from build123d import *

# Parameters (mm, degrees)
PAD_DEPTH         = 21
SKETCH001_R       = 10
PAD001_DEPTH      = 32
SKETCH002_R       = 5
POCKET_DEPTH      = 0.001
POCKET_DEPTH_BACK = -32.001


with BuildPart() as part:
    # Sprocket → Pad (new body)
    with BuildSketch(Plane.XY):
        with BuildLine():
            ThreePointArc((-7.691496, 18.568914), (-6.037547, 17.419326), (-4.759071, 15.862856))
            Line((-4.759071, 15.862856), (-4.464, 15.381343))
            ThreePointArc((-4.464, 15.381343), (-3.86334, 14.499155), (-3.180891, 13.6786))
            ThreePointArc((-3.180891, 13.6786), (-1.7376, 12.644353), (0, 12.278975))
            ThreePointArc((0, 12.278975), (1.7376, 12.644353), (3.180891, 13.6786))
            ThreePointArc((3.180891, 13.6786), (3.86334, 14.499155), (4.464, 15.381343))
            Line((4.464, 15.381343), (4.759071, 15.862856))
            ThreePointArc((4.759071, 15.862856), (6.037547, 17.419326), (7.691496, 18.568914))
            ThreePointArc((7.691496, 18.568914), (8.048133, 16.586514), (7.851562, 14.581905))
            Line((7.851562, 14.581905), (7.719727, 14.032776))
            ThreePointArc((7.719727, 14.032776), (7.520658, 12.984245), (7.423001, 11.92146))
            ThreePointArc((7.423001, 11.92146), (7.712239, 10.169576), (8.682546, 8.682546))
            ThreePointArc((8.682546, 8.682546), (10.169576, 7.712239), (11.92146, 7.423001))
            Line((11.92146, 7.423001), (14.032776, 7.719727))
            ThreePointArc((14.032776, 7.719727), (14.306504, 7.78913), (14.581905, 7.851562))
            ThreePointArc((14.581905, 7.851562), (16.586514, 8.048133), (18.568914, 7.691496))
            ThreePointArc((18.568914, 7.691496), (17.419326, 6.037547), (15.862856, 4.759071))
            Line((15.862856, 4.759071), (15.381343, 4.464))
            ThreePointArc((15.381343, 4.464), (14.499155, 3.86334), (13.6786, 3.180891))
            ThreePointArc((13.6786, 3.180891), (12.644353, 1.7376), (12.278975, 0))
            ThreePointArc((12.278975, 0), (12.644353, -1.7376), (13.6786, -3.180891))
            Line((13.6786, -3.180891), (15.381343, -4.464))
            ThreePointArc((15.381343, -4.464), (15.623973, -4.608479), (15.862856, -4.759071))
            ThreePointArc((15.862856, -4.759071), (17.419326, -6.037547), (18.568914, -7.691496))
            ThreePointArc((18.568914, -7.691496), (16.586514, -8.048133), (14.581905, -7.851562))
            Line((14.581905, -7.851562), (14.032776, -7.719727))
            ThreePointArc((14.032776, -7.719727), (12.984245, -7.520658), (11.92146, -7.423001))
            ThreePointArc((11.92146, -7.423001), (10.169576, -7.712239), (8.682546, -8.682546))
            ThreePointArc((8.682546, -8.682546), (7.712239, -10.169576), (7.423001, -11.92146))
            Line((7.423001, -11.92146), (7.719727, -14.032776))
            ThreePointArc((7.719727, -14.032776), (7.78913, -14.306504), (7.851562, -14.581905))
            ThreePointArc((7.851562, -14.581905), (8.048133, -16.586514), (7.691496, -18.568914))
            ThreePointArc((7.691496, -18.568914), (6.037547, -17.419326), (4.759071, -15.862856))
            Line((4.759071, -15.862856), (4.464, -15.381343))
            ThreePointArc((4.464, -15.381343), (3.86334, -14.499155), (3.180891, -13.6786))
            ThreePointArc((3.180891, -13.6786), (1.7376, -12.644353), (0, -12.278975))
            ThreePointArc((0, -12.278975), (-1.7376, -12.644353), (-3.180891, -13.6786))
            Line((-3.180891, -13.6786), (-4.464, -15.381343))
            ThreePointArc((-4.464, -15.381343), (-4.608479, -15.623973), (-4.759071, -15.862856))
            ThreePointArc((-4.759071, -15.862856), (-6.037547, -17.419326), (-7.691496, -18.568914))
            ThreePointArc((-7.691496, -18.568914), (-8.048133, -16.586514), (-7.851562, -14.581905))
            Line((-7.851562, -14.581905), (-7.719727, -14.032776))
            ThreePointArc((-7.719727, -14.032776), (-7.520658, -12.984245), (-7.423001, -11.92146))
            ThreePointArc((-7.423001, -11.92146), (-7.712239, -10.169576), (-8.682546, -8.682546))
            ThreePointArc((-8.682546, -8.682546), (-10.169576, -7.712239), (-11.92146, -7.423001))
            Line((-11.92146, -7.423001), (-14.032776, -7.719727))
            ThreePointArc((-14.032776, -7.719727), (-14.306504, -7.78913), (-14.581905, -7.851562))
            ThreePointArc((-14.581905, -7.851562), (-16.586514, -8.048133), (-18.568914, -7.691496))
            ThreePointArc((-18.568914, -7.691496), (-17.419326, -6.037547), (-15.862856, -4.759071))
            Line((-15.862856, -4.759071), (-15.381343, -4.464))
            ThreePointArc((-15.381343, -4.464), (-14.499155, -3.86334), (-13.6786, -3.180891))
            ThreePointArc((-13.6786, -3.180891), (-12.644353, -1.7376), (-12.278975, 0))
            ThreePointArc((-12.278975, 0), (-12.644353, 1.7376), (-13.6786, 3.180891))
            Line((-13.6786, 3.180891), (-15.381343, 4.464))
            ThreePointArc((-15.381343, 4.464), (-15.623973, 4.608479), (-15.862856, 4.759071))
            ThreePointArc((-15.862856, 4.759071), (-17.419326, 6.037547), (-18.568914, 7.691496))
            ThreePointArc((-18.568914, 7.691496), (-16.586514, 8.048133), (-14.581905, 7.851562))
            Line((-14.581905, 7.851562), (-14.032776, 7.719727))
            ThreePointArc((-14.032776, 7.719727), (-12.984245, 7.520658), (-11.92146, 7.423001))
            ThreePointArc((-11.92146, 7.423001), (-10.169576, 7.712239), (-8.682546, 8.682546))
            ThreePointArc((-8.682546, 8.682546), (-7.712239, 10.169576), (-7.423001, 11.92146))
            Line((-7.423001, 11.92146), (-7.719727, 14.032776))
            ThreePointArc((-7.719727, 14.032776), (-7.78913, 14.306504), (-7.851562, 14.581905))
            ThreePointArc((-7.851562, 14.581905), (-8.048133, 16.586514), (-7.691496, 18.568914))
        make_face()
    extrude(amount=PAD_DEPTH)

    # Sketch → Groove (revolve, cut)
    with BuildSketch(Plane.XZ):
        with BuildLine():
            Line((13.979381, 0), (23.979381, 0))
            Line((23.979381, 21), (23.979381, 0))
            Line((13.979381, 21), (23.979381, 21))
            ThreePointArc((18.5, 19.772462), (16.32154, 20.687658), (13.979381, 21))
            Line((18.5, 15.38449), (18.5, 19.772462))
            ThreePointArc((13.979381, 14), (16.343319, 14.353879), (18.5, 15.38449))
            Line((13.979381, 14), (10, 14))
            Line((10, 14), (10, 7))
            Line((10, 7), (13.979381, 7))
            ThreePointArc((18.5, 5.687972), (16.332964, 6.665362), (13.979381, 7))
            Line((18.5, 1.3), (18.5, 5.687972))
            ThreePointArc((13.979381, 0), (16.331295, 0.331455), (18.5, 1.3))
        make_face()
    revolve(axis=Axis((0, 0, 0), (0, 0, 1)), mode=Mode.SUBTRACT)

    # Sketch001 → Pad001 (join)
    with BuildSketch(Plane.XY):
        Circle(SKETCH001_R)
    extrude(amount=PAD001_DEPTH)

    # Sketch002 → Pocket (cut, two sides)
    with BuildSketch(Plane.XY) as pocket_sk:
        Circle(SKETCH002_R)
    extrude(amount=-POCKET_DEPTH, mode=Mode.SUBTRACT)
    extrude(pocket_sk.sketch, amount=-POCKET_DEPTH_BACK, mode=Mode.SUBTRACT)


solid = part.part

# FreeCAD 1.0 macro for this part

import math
import FreeCAD as App
import Part
import Sketcher
from FreeCAD import Vector

doc = App.newDocument("Part")
body = doc.addObject("PartDesign::Body", "Body")

sketch1 = doc.addObject("Sketcher::SketchObject", "Sketch")
body.addObject(sketch1)
sketch1.AttachmentSupport = (doc.XY_Plane, [""])
sketch1.MapMode = "FlatFace"
sketch1.addGeometry(Part.ArcOfCircle(Part.Circle(Vector(-11.007099, 12.034061, 0), Vector(0, 0, 1), 7.327859), math.radians(31.499988), math.radians(63.098027)), False)
sketch1.addGeometry(Part.ArcOfCircle(Part.Circle(Vector(-0.726167, 16.29256, 0), Vector(0, 0, 1), 7.327864), math.radians(161.901981), math.radians(193.499994)), False)
sketch1.addGeometry(Part.ArcOfCircle(Part.Circle(Vector(3.027006, 16.903244, 0), Vector(0, 0, 1), 11.123482), math.radians(-167.954515), math.radians(-165.045329)), False)
sketch1.addGeometry(Part.LineSegment(Vector(-7.719727, 14.032776, 0), Vector(-7.423001, 11.92146, 0)), False)
sketch1.addGeometry(Part.ArcOfCircle(Part.Circle(Vector(-11.733276, 11.733272, 0), Vector(0, 0, 1), 4.314381), math.radians(-44.999965), math.radians(2.499958)), False)
sketch1.addGeometry(Part.ArcOfCircle(Part.Circle(Vector(-11.733272, 11.733276, 0), Vector(0, 0, 1), 4.314381), math.radians(-92.499958), math.radians(-45.000035)), False)
sketch1.addGeometry(Part.ArcOfCircle(Part.Circle(Vector(-11.436285, 18.534963, 0), Vector(0, 0, 1), 11.122549), math.radians(-103.499912), math.radians(-92.500082)), False)
sketch1.addGeometry(Part.LineSegment(Vector(-14.032776, 7.719727, 0), Vector(-14.581905, 7.851562, 0)), False)
sketch1.addGeometry(Part.ArcOfCircle(Part.Circle(Vector(-16.29256, 0.726167, 0), Vector(0, 0, 1), 7.327864), math.radians(76.500006), math.radians(108.098019)), False)
sketch1.addGeometry(Part.ArcOfCircle(Part.Circle(Vector(-12.034061, 11.007099, 0), Vector(0, 0, 1), 7.327859), math.radians(-153.098027), math.radians(-121.499988)), False)
sketch1.addGeometry(Part.ArcOfCircle(Part.Circle(Vector(-9.812852, 14.091384, 0), Vector(0, 0, 1), 11.121808), math.radians(-122.954762), math.radians(-120.045144)), False)
sketch1.addGeometry(Part.LineSegment(Vector(-15.381343, 4.464, 0), Vector(-13.6786, 3.180891, 0)), False)
sketch1.addGeometry(Part.ArcOfCircle(Part.Circle(Vector(-16.593353, -0.000001, 0), Vector(0, 0, 1), 4.314378), math.radians(0.000011), math.radians(47.499973)), False)
sketch1.addGeometry(Part.ArcOfCircle(Part.Circle(Vector(-16.593353, 0.000001, 0), Vector(0, 0, 1), 4.314378), math.radians(-47.499973), math.radians(-0.000011)), False)
sketch1.addGeometry(Part.ArcOfCircle(Part.Circle(Vector(-21.192716, 5.019314, 0), Vector(0, 0, 1), 11.122288), math.radians(-58.500042), math.radians(-47.499953)), False)
sketch1.addGeometry(Part.LineSegment(Vector(-15.381343, -4.464, 0), Vector(-15.862856, -4.759071, 0)), False)
sketch1.addGeometry(Part.ArcOfCircle(Part.Circle(Vector(-12.034061, -11.007099, 0), Vector(0, 0, 1), 7.327859), math.radians(121.499988), math.radians(153.098027)), False)
sketch1.addGeometry(Part.ArcOfCircle(Part.Circle(Vector(-16.29256, -0.726167, 0), Vector(0, 0, 1), 7.327864), math.radians(-108.098019), math.radians(-76.500006)), False)
sketch1.addGeometry(Part.ArcOfCircle(Part.Circle(Vector(-16.903244, 3.027006, 0), Vector(0, 0, 1), 11.123482), math.radians(-77.954515), math.radians(-75.045329)), False)
sketch1.addGeometry(Part.LineSegment(Vector(-14.032776, -7.719727, 0), Vector(-11.92146, -7.423001, 0)), False)
sketch1.addGeometry(Part.ArcOfCircle(Part.Circle(Vector(-11.733272, -11.733276, 0), Vector(0, 0, 1), 4.314381), math.radians(45.000035), math.radians(92.499958)), False)
sketch1.addGeometry(Part.ArcOfCircle(Part.Circle(Vector(-11.733276, -11.733272, 0), Vector(0, 0, 1), 4.314381), math.radians(-2.499958), math.radians(44.999965)), False)
sketch1.addGeometry(Part.ArcOfCircle(Part.Circle(Vector(-18.534963, -11.436285, 0), Vector(0, 0, 1), 11.122549), math.radians(-13.499912), math.radians(-2.500082)), False)
sketch1.addGeometry(Part.LineSegment(Vector(-7.719727, -14.032776, 0), Vector(-7.851562, -14.581905, 0)), False)
sketch1.addGeometry(Part.ArcOfCircle(Part.Circle(Vector(-0.726167, -16.29256, 0), Vector(0, 0, 1), 7.327864), math.radians(166.500006), math.radians(198.098019)), False)
sketch1.addGeometry(Part.ArcOfCircle(Part.Circle(Vector(-11.007099, -12.034061, 0), Vector(0, 0, 1), 7.327859), math.radians(-63.098027), math.radians(-31.499988)), False)
sketch1.addGeometry(Part.ArcOfCircle(Part.Circle(Vector(-14.091384, -9.812852, 0), Vector(0, 0, 1), 11.121808), math.radians(-32.954762), math.radians(-30.045144)), False)
sketch1.addGeometry(Part.LineSegment(Vector(-4.464, -15.381343, 0), Vector(-3.180891, -13.6786, 0)), False)
sketch1.addGeometry(Part.ArcOfCircle(Part.Circle(Vector(0.000001, -16.593353, 0), Vector(0, 0, 1), 4.314378), math.radians(90.000011), math.radians(137.499973)), False)
sketch1.addGeometry(Part.ArcOfCircle(Part.Circle(Vector(-0.000001, -16.593353, 0), Vector(0, 0, 1), 4.314378), math.radians(42.500027), math.radians(89.999989)), False)
sketch1.addGeometry(Part.ArcOfCircle(Part.Circle(Vector(-5.019314, -21.192716, 0), Vector(0, 0, 1), 11.122288), math.radians(31.499958), math.radians(42.500047)), False)
sketch1.addGeometry(Part.LineSegment(Vector(4.464, -15.381343, 0), Vector(4.759071, -15.862856, 0)), False)
sketch1.addGeometry(Part.ArcOfCircle(Part.Circle(Vector(11.007099, -12.034061, 0), Vector(0, 0, 1), 7.327859), math.radians(-148.500012), math.radians(-116.901973)), False)
sketch1.addGeometry(Part.ArcOfCircle(Part.Circle(Vector(0.726167, -16.29256, 0), Vector(0, 0, 1), 7.327864), math.radians(-18.098019), math.radians(13.499994)), False)
sketch1.addGeometry(Part.ArcOfCircle(Part.Circle(Vector(-3.027006, -16.903244, 0), Vector(0, 0, 1), 11.123482), math.radians(12.045485), math.radians(14.954671)), False)
sketch1.addGeometry(Part.LineSegment(Vector(7.719727, -14.032776, 0), Vector(7.423001, -11.92146, 0)), False)
sketch1.addGeometry(Part.ArcOfCircle(Part.Circle(Vector(11.733276, -11.733272, 0), Vector(0, 0, 1), 4.314381), math.radians(135.000035), math.radians(182.499958)), False)
sketch1.addGeometry(Part.ArcOfCircle(Part.Circle(Vector(11.733272, -11.733276, 0), Vector(0, 0, 1), 4.314381), math.radians(87.500042), math.radians(134.999965)), False)
sketch1.addGeometry(Part.ArcOfCircle(Part.Circle(Vector(11.436285, -18.534963, 0), Vector(0, 0, 1), 11.122549), math.radians(76.500088), math.radians(87.499918)), False)
sketch1.addGeometry(Part.LineSegment(Vector(14.032776, -7.719727, 0), Vector(14.581905, -7.851562, 0)), False)
sketch1.addGeometry(Part.ArcOfCircle(Part.Circle(Vector(16.29256, -0.726167, 0), Vector(0, 0, 1), 7.327864), math.radians(-103.499994), math.radians(-71.901981)), False)
sketch1.addGeometry(Part.ArcOfCircle(Part.Circle(Vector(12.034061, -11.007099, 0), Vector(0, 0, 1), 7.327859), math.radians(26.901973), math.radians(58.500012)), False)
sketch1.addGeometry(Part.ArcOfCircle(Part.Circle(Vector(9.812852, -14.091384, 0), Vector(0, 0, 1), 11.121808), math.radians(57.045238), math.radians(59.954856)), False)
sketch1.addGeometry(Part.LineSegment(Vector(15.381343, -4.464, 0), Vector(13.6786, -3.180891, 0)), False)
sketch1.addGeometry(Part.ArcOfCircle(Part.Circle(Vector(16.593353, 0.000001, 0), Vector(0, 0, 1), 4.314378), math.radians(-179.999989), math.radians(-132.500027)), False)
sketch1.addGeometry(Part.ArcOfCircle(Part.Circle(Vector(16.593353, -0.000001, 0), Vector(0, 0, 1), 4.314378), math.radians(132.500027), math.radians(179.999989)), False)
sketch1.addGeometry(Part.ArcOfCircle(Part.Circle(Vector(21.192716, -5.019314, 0), Vector(0, 0, 1), 11.122288), math.radians(121.499958), math.radians(132.500047)), False)
sketch1.addGeometry(Part.LineSegment(Vector(15.381343, 4.464, 0), Vector(15.862856, 4.759071, 0)), False)
sketch1.addGeometry(Part.ArcOfCircle(Part.Circle(Vector(12.034061, 11.007099, 0), Vector(0, 0, 1), 7.327859), math.radians(-58.500012), math.radians(-26.901973)), False)
sketch1.addGeometry(Part.ArcOfCircle(Part.Circle(Vector(16.29256, 0.726167, 0), Vector(0, 0, 1), 7.327864), math.radians(71.901981), math.radians(103.499994)), False)
sketch1.addGeometry(Part.ArcOfCircle(Part.Circle(Vector(16.903244, -3.027006, 0), Vector(0, 0, 1), 11.123482), math.radians(102.045485), math.radians(104.954671)), False)
sketch1.addGeometry(Part.LineSegment(Vector(14.032776, 7.719727, 0), Vector(11.92146, 7.423001, 0)), False)
sketch1.addGeometry(Part.ArcOfCircle(Part.Circle(Vector(11.733272, 11.733276, 0), Vector(0, 0, 1), 4.314381), math.radians(-134.999965), math.radians(-87.500042)), False)
sketch1.addGeometry(Part.ArcOfCircle(Part.Circle(Vector(11.733276, 11.733272, 0), Vector(0, 0, 1), 4.314381), math.radians(177.500042), math.radians(224.999965)), False)
sketch1.addGeometry(Part.ArcOfCircle(Part.Circle(Vector(18.534963, 11.436285, 0), Vector(0, 0, 1), 11.122549), math.radians(166.500088), math.radians(177.499918)), False)
sketch1.addGeometry(Part.LineSegment(Vector(7.719727, 14.032776, 0), Vector(7.851562, 14.581905, 0)), False)
sketch1.addGeometry(Part.ArcOfCircle(Part.Circle(Vector(0.726167, 16.29256, 0), Vector(0, 0, 1), 7.327864), math.radians(-13.499994), math.radians(18.098019)), False)
sketch1.addGeometry(Part.ArcOfCircle(Part.Circle(Vector(11.007099, 12.034061, 0), Vector(0, 0, 1), 7.327859), math.radians(116.901973), math.radians(148.500012)), False)
sketch1.addGeometry(Part.LineSegment(Vector(4.759071, 15.862856, 0), Vector(4.464, 15.381343, 0)), False)
sketch1.addGeometry(Part.ArcOfCircle(Part.Circle(Vector(-5.019314, 21.192716, 0), Vector(0, 0, 1), 11.122288), math.radians(-42.500047), math.radians(-31.499958)), False)
sketch1.addGeometry(Part.ArcOfCircle(Part.Circle(Vector(-0.000001, 16.593353, 0), Vector(0, 0, 1), 4.314378), math.radians(-89.999989), math.radians(-42.500027)), False)
sketch1.addGeometry(Part.ArcOfCircle(Part.Circle(Vector(0.000001, 16.593353, 0), Vector(0, 0, 1), 4.314378), math.radians(-137.499973), math.radians(-90.000011)), False)
sketch1.addGeometry(Part.ArcOfCircle(Part.Circle(Vector(5.019314, 21.192716, 0), Vector(0, 0, 1), 11.122288), math.radians(-148.500042), math.radians(-137.499953)), False)
sketch1.addGeometry(Part.LineSegment(Vector(-4.464, 15.381343, 0), Vector(-4.759071, 15.862856, 0)), False)
sketch1.addConstraint(Sketcher.Constraint("Coincident", 0, 2, 1, 1))
sketch1.addConstraint(Sketcher.Constraint("Coincident", 1, 2, 2, 1))
sketch1.addConstraint(Sketcher.Constraint("Coincident", 2, 2, 3, 1))
sketch1.addConstraint(Sketcher.Constraint("Coincident", 3, 2, 4, 2))
sketch1.addConstraint(Sketcher.Constraint("Coincident", 4, 1, 5, 2))
sketch1.addConstraint(Sketcher.Constraint("Coincident", 5, 1, 6, 2))
sketch1.addConstraint(Sketcher.Constraint("Coincident", 6, 1, 7, 1))
sketch1.addConstraint(Sketcher.Constraint("Coincident", 7, 2, 8, 1))
sketch1.addConstraint(Sketcher.Constraint("Coincident", 8, 2, 9, 1))
sketch1.addConstraint(Sketcher.Constraint("Coincident", 9, 2, 10, 1))
sketch1.addConstraint(Sketcher.Constraint("Coincident", 10, 2, 11, 1))
sketch1.addConstraint(Sketcher.Constraint("Coincident", 11, 2, 12, 2))
sketch1.addConstraint(Sketcher.Constraint("Coincident", 12, 1, 13, 2))
sketch1.addConstraint(Sketcher.Constraint("Coincident", 13, 1, 14, 2))
sketch1.addConstraint(Sketcher.Constraint("Coincident", 14, 1, 15, 1))
sketch1.addConstraint(Sketcher.Constraint("Coincident", 15, 2, 16, 1))
sketch1.addConstraint(Sketcher.Constraint("Coincident", 16, 2, 17, 1))
sketch1.addConstraint(Sketcher.Constraint("Coincident", 17, 2, 18, 1))
sketch1.addConstraint(Sketcher.Constraint("Coincident", 18, 2, 19, 1))
sketch1.addConstraint(Sketcher.Constraint("Coincident", 19, 2, 20, 2))
sketch1.addConstraint(Sketcher.Constraint("Coincident", 20, 1, 21, 2))
sketch1.addConstraint(Sketcher.Constraint("Coincident", 21, 1, 22, 2))
sketch1.addConstraint(Sketcher.Constraint("Coincident", 22, 1, 23, 1))
sketch1.addConstraint(Sketcher.Constraint("Coincident", 23, 2, 24, 1))
sketch1.addConstraint(Sketcher.Constraint("Coincident", 24, 2, 25, 1))
sketch1.addConstraint(Sketcher.Constraint("Coincident", 25, 2, 26, 1))
sketch1.addConstraint(Sketcher.Constraint("Coincident", 26, 2, 27, 1))
sketch1.addConstraint(Sketcher.Constraint("Coincident", 27, 2, 28, 2))
sketch1.addConstraint(Sketcher.Constraint("Coincident", 28, 1, 29, 2))
sketch1.addConstraint(Sketcher.Constraint("Coincident", 29, 1, 30, 2))
sketch1.addConstraint(Sketcher.Constraint("Coincident", 30, 1, 31, 1))
sketch1.addConstraint(Sketcher.Constraint("Coincident", 31, 2, 32, 1))
sketch1.addConstraint(Sketcher.Constraint("Coincident", 32, 2, 33, 1))
sketch1.addConstraint(Sketcher.Constraint("Coincident", 33, 2, 34, 1))
sketch1.addConstraint(Sketcher.Constraint("Coincident", 34, 2, 35, 1))
sketch1.addConstraint(Sketcher.Constraint("Coincident", 35, 2, 36, 2))
sketch1.addConstraint(Sketcher.Constraint("Coincident", 36, 1, 37, 2))
sketch1.addConstraint(Sketcher.Constraint("Coincident", 37, 1, 38, 2))
sketch1.addConstraint(Sketcher.Constraint("Coincident", 38, 1, 39, 1))
sketch1.addConstraint(Sketcher.Constraint("Coincident", 39, 2, 40, 1))
sketch1.addConstraint(Sketcher.Constraint("Coincident", 40, 2, 41, 1))
sketch1.addConstraint(Sketcher.Constraint("Coincident", 41, 2, 42, 1))
sketch1.addConstraint(Sketcher.Constraint("Coincident", 42, 2, 43, 1))
sketch1.addConstraint(Sketcher.Constraint("Coincident", 43, 2, 44, 2))
sketch1.addConstraint(Sketcher.Constraint("Coincident", 44, 1, 45, 2))
sketch1.addConstraint(Sketcher.Constraint("Coincident", 45, 1, 46, 2))
sketch1.addConstraint(Sketcher.Constraint("Coincident", 46, 1, 47, 1))
sketch1.addConstraint(Sketcher.Constraint("Coincident", 47, 2, 48, 1))
sketch1.addConstraint(Sketcher.Constraint("Coincident", 48, 2, 49, 1))
sketch1.addConstraint(Sketcher.Constraint("Coincident", 49, 2, 50, 1))
sketch1.addConstraint(Sketcher.Constraint("Coincident", 50, 2, 51, 1))
sketch1.addConstraint(Sketcher.Constraint("Coincident", 51, 2, 52, 2))
sketch1.addConstraint(Sketcher.Constraint("Coincident", 52, 1, 53, 2))
sketch1.addConstraint(Sketcher.Constraint("Coincident", 53, 1, 54, 2))
sketch1.addConstraint(Sketcher.Constraint("Coincident", 54, 1, 55, 1))
sketch1.addConstraint(Sketcher.Constraint("Coincident", 55, 2, 56, 1))
sketch1.addConstraint(Sketcher.Constraint("Coincident", 56, 2, 57, 1))
sketch1.addConstraint(Sketcher.Constraint("Coincident", 57, 2, 58, 1))
sketch1.addConstraint(Sketcher.Constraint("Coincident", 58, 2, 59, 2))
sketch1.addConstraint(Sketcher.Constraint("Coincident", 59, 1, 60, 2))
sketch1.addConstraint(Sketcher.Constraint("Coincident", 60, 1, 61, 2))
sketch1.addConstraint(Sketcher.Constraint("Coincident", 61, 1, 62, 2))
sketch1.addConstraint(Sketcher.Constraint("Coincident", 62, 1, 63, 1))
sketch1.addConstraint(Sketcher.Constraint("Coincident", 63, 2, 0, 1))
sketch1.addConstraint(Sketcher.Constraint("Coincident", 5, 3, 4, 3))
sketch1.addConstraint(Sketcher.Constraint("Coincident", 13, 3, 12, 3))
sketch1.addConstraint(Sketcher.Constraint("Coincident", 21, 3, 20, 3))
sketch1.addConstraint(Sketcher.Constraint("Coincident", 29, 3, 28, 3))
sketch1.addConstraint(Sketcher.Constraint("Coincident", 37, 3, 36, 3))
sketch1.addConstraint(Sketcher.Constraint("Coincident", 45, 3, 44, 3))
sketch1.addConstraint(Sketcher.Constraint("Coincident", 53, 3, 52, 3))
sketch1.addConstraint(Sketcher.Constraint("Coincident", 61, 3, 60, 3))
sketch1.addConstraint(Sketcher.Constraint("PointOnObject", 12, 3, -1))
sketch1.addConstraint(Sketcher.Constraint("PointOnObject", 28, 3, -2))
sketch1.addConstraint(Sketcher.Constraint("PointOnObject", 44, 3, -1))
sketch1.addConstraint(Sketcher.Constraint("PointOnObject", 60, 3, -2))
sketch1.addConstraint(Sketcher.Constraint("PointOnObject", 12, 1, -1))
sketch1.addConstraint(Sketcher.Constraint("PointOnObject", 28, 1, -2))
sketch1.addConstraint(Sketcher.Constraint("PointOnObject", 44, 1, -1))
sketch1.addConstraint(Sketcher.Constraint("PointOnObject", 60, 1, -2))
sketch1.addConstraint(Sketcher.Constraint("Radius", 0, 7.327859))
sketch1.addConstraint(Sketcher.Constraint("Radius", 4, 4.314381))
sketch1.addConstraint(Sketcher.Constraint("Radius", 6, 11.122549))
sketch1.addConstraint(Sketcher.Constraint("Radius", 9, 7.327859))
sketch1.addConstraint(Sketcher.Constraint("Radius", 10, 11.121808))
sketch1.addConstraint(Sketcher.Constraint("Radius", 12, 4.314378))
sketch1.addConstraint(Sketcher.Constraint("Radius", 14, 11.122288))
sketch1.addConstraint(Sketcher.Constraint("Radius", 16, 7.327859))
sketch1.addConstraint(Sketcher.Constraint("Radius", 20, 4.314381))
sketch1.addConstraint(Sketcher.Constraint("Radius", 22, 11.122549))
sketch1.addConstraint(Sketcher.Constraint("Radius", 25, 7.327859))
sketch1.addConstraint(Sketcher.Constraint("Radius", 26, 11.121808))
sketch1.addConstraint(Sketcher.Constraint("Radius", 28, 4.314378))
sketch1.addConstraint(Sketcher.Constraint("Radius", 30, 11.122288))
sketch1.addConstraint(Sketcher.Constraint("Radius", 32, 7.327859))
sketch1.addConstraint(Sketcher.Constraint("Radius", 36, 4.314381))
sketch1.addConstraint(Sketcher.Constraint("Radius", 38, 11.122549))
sketch1.addConstraint(Sketcher.Constraint("Radius", 41, 7.327859))
sketch1.addConstraint(Sketcher.Constraint("Radius", 42, 11.121808))
sketch1.addConstraint(Sketcher.Constraint("Radius", 44, 4.314378))
sketch1.addConstraint(Sketcher.Constraint("Radius", 46, 11.122288))
sketch1.addConstraint(Sketcher.Constraint("Radius", 48, 7.327859))
sketch1.addConstraint(Sketcher.Constraint("Radius", 52, 4.314381))
sketch1.addConstraint(Sketcher.Constraint("Radius", 54, 11.122549))
sketch1.addConstraint(Sketcher.Constraint("Radius", 57, 7.327859))
sketch1.addConstraint(Sketcher.Constraint("Radius", 59, 11.122288))
sketch1.addConstraint(Sketcher.Constraint("Radius", 60, 4.314378))
sketch1.addConstraint(Sketcher.Constraint("Radius", 62, 11.122288))
sketch1.addConstraint(Sketcher.Constraint("DistanceX", 3, 2, -1, 1, 7.423001))
sketch1.addConstraint(Sketcher.Constraint("DistanceY", -1, 1, 5, 1, 7.423001))
sketch1.addConstraint(Sketcher.Constraint("DistanceY", -1, 1, 10, 2, 4.464))
sketch1.addConstraint(Sketcher.Constraint("DistanceY", 14, 1, -1, 1, 4.464))
sketch1.addConstraint(Sketcher.Constraint("DistanceY", 19, 2, -1, 1, 7.423001))
sketch1.addConstraint(Sketcher.Constraint("DistanceX", 21, 1, -1, 1, 7.423001))
sketch1.addConstraint(Sketcher.Constraint("DistanceX", 26, 2, -1, 1, 4.464))
sketch1.addConstraint(Sketcher.Constraint("DistanceX", -1, 1, 30, 1, 4.464))
sketch1.addConstraint(Sketcher.Constraint("DistanceX", -1, 1, 35, 2, 7.423001))
sketch1.addConstraint(Sketcher.Constraint("DistanceY", 37, 1, -1, 1, 7.423001))
sketch1.addConstraint(Sketcher.Constraint("DistanceY", 42, 2, -1, 1, 4.464))
sketch1.addConstraint(Sketcher.Constraint("DistanceY", -1, 1, 46, 1, 4.464))
sketch1.addConstraint(Sketcher.Constraint("DistanceY", -1, 1, 51, 2, 7.423001))
sketch1.addConstraint(Sketcher.Constraint("DistanceX", -1, 1, 53, 1, 7.423001))
sketch1.addConstraint(Sketcher.Constraint("DistanceX", -1, 1, 58, 2, 4.464))
sketch1.addConstraint(Sketcher.Constraint("DistanceX", 62, 1, -1, 1, 4.464))
sketch1.addConstraint(Sketcher.Constraint("Radius", 1, 7.327864))
sketch1.addConstraint(Sketcher.Constraint("Radius", 2, 11.123482))
sketch1.addConstraint(Sketcher.Constraint("Radius", 8, 7.327864))
sketch1.addConstraint(Sketcher.Constraint("Radius", 17, 7.327864))
sketch1.addConstraint(Sketcher.Constraint("Radius", 18, 11.123482))
sketch1.addConstraint(Sketcher.Constraint("Radius", 24, 7.327864))
sketch1.addConstraint(Sketcher.Constraint("Radius", 33, 7.327864))
sketch1.addConstraint(Sketcher.Constraint("Radius", 34, 11.123482))
sketch1.addConstraint(Sketcher.Constraint("Radius", 40, 7.327864))
sketch1.addConstraint(Sketcher.Constraint("Radius", 49, 7.327864))
sketch1.addConstraint(Sketcher.Constraint("Radius", 50, 11.123482))
sketch1.addConstraint(Sketcher.Constraint("Radius", 56, 7.327864))
sketch1.addConstraint(Sketcher.Constraint("DistanceX", 0, 3, -1, 1, 11.007099))
sketch1.addConstraint(Sketcher.Constraint("DistanceY", -1, 1, 9, 3, 11.007099))
sketch1.addConstraint(Sketcher.Constraint("DistanceY", 16, 3, -1, 1, 11.007099))
sketch1.addConstraint(Sketcher.Constraint("DistanceX", 25, 3, -1, 1, 11.007099))
sketch1.addConstraint(Sketcher.Constraint("DistanceX", -1, 1, 32, 3, 11.007099))
sketch1.addConstraint(Sketcher.Constraint("DistanceY", 41, 3, -1, 1, 11.007099))
sketch1.addConstraint(Sketcher.Constraint("DistanceY", -1, 1, 48, 3, 11.007099))
sketch1.addConstraint(Sketcher.Constraint("DistanceX", -1, 1, 57, 3, 11.007099))
sketch1.addConstraint(Sketcher.Constraint("DistanceX", 11, 2, -1, 1, 13.6786))
sketch1.addConstraint(Sketcher.Constraint("DistanceX", 13, 1, -1, 1, 13.6786))
sketch1.addConstraint(Sketcher.Constraint("DistanceY", 27, 2, -1, 1, 13.6786))
sketch1.addConstraint(Sketcher.Constraint("DistanceY", 29, 1, -1, 1, 13.6786))
sketch1.addConstraint(Sketcher.Constraint("DistanceX", -1, 1, 43, 2, 13.6786))
sketch1.addConstraint(Sketcher.Constraint("DistanceX", -1, 1, 45, 1, 13.6786))
sketch1.addConstraint(Sketcher.Constraint("DistanceY", -1, 1, 59, 1, 13.6786))
sketch1.addConstraint(Sketcher.Constraint("DistanceY", -1, 1, 61, 1, 13.6786))
sketch1.addConstraint(Sketcher.Constraint("Distance", 15, 0.564731))
sketch1.addConstraint(Sketcher.Constraint("Distance", 31, 0.564731))
sketch1.addConstraint(Sketcher.Constraint("Distance", 47, 0.564731))
sketch1.addConstraint(Sketcher.Constraint("Distance", 58, 0.564731))
sketch1.addConstraint(Sketcher.Constraint("Distance", 63, 0.564731))
sketch1.addConstraint(Sketcher.Constraint("DistanceY", -1, 1, 0, 3, 12.034061))
sketch1.addConstraint(Sketcher.Constraint("DistanceY", -1, 1, 1, 3, 16.29256))
sketch1.addConstraint(Sketcher.Constraint("DistanceX", 8, 3, -1, 1, 16.29256))
sketch1.addConstraint(Sketcher.Constraint("DistanceX", 9, 3, -1, 1, 12.034061))
sketch1.addConstraint(Sketcher.Constraint("DistanceX", 10, 3, -1, 1, 9.812852))
sketch1.addConstraint(Sketcher.Constraint("DistanceX", 16, 3, -1, 1, 12.034061))
sketch1.addConstraint(Sketcher.Constraint("DistanceX", 17, 3, -1, 1, 16.29256))
sketch1.addConstraint(Sketcher.Constraint("DistanceY", 24, 3, -1, 1, 16.29256))
sketch1.addConstraint(Sketcher.Constraint("DistanceY", 25, 3, -1, 1, 12.034061))
sketch1.addConstraint(Sketcher.Constraint("DistanceY", 26, 3, -1, 1, 9.812852))
sketch1.addConstraint(Sketcher.Constraint("DistanceY", 32, 3, -1, 1, 12.034061))
sketch1.addConstraint(Sketcher.Constraint("DistanceY", 33, 3, -1, 1, 16.29256))
sketch1.addConstraint(Sketcher.Constraint("DistanceX", -1, 1, 40, 3, 16.29256))
sketch1.addConstraint(Sketcher.Constraint("DistanceX", -1, 1, 41, 3, 12.034061))
sketch1.addConstraint(Sketcher.Constraint("DistanceX", -1, 1, 42, 3, 9.812852))
sketch1.addConstraint(Sketcher.Constraint("DistanceX", -1, 1, 48, 3, 12.034061))
sketch1.addConstraint(Sketcher.Constraint("DistanceX", -1, 1, 49, 3, 16.29256))
sketch1.addConstraint(Sketcher.Constraint("DistanceY", -1, 1, 56, 3, 16.29256))
sketch1.addConstraint(Sketcher.Constraint("DistanceY", -1, 1, 57, 3, 12.034061))
sketch1.addConstraint(Sketcher.Constraint("DistanceX", 1, 2, -1, 1, 7.851562))
sketch1.addConstraint(Sketcher.Constraint("DistanceY", -1, 1, 3, 2, 11.92146))
sketch1.addConstraint(Sketcher.Constraint("DistanceX", 5, 1, -1, 1, 11.92146))
sketch1.addConstraint(Sketcher.Constraint("DistanceY", -1, 1, 9, 2, 4.759071))
sketch1.addConstraint(Sketcher.Constraint("DistanceY", -1, 1, 11, 2, 3.180891))
sketch1.addConstraint(Sketcher.Constraint("DistanceY", 15, 2, -1, 1, 4.759071))
sketch1.addConstraint(Sketcher.Constraint("DistanceY", 17, 2, -1, 1, 7.851562))
sketch1.addConstraint(Sketcher.Constraint("DistanceX", 19, 2, -1, 1, 11.92146))
sketch1.addConstraint(Sketcher.Constraint("DistanceY", 21, 1, -1, 1, 11.92146))
sketch1.addConstraint(Sketcher.Constraint("DistanceX", 25, 2, -1, 1, 4.759071))
sketch1.addConstraint(Sketcher.Constraint("DistanceX", 27, 2, -1, 1, 3.180891))
sketch1.addConstraint(Sketcher.Constraint("DistanceX", -1, 1, 31, 2, 4.759071))
sketch1.addConstraint(Sketcher.Constraint("DistanceX", -1, 1, 33, 2, 7.851562))
sketch1.addConstraint(Sketcher.Constraint("DistanceY", 35, 2, -1, 1, 11.92146))
sketch1.addConstraint(Sketcher.Constraint("DistanceX", -1, 1, 37, 1, 11.92146))
sketch1.addConstraint(Sketcher.Constraint("DistanceY", 41, 2, -1, 1, 4.759071))
sketch1.addConstraint(Sketcher.Constraint("DistanceY", 43, 2, -1, 1, 3.180891))
sketch1.addConstraint(Sketcher.Constraint("DistanceY", -1, 1, 47, 2, 4.759071))
sketch1.addConstraint(Sketcher.Constraint("DistanceY", -1, 1, 49, 2, 7.851562))
sketch1.addConstraint(Sketcher.Constraint("DistanceX", -1, 1, 51, 2, 11.92146))
sketch1.addConstraint(Sketcher.Constraint("DistanceY", -1, 1, 53, 1, 11.92146))
sketch1.addConstraint(Sketcher.Constraint("DistanceX", -1, 1, 57, 2, 4.759071))
sketch1.addConstraint(Sketcher.Constraint("DistanceX", -1, 1, 59, 1, 3.180891))
sketch1.addConstraint(Sketcher.Constraint("DistanceX", 63, 2, -1, 1, 4.759071))
sketch1.addConstraint(Sketcher.Constraint("Distance", 3, 2.132065))
sketch1.addConstraint(Sketcher.Constraint("Distance", 7, 0.564733))
sketch1.addConstraint(Sketcher.Constraint("Distance", 19, 2.132065))
sketch1.addConstraint(Sketcher.Constraint("Distance", 23, 0.564733))
sketch1.addConstraint(Sketcher.Constraint("Distance", 35, 2.132065))
sketch1.addConstraint(Sketcher.Constraint("Distance", 39, 0.564733))
sketch1.addConstraint(Sketcher.Constraint("Distance", 51, 2.132065))
sketch1.addConstraint(Sketcher.Constraint("Distance", 55, 0.564733))
sketch1.addConstraint(Sketcher.Constraint("DistanceX", 1, 3, -1, 1, 0.726167))
sketch1.addConstraint(Sketcher.Constraint("DistanceX", -1, 1, 2, 3, 3.027006))
sketch1.addConstraint(Sketcher.Constraint("DistanceX", 6, 3, -1, 1, 11.436285))
sketch1.addConstraint(Sketcher.Constraint("DistanceY", -1, 1, 8, 3, 0.726167))
sketch1.addConstraint(Sketcher.Constraint("DistanceY", 17, 3, -1, 1, 0.726167))
sketch1.addConstraint(Sketcher.Constraint("DistanceX", 18, 3, -1, 1, 16.903244))
sketch1.addConstraint(Sketcher.Constraint("DistanceX", 22, 3, -1, 1, 18.534963))
sketch1.addConstraint(Sketcher.Constraint("DistanceX", 24, 3, -1, 1, 0.726167))
sketch1.addConstraint(Sketcher.Constraint("DistanceX", -1, 1, 33, 3, 0.726167))
sketch1.addConstraint(Sketcher.Constraint("DistanceX", 34, 3, -1, 1, 3.027006))
sketch1.addConstraint(Sketcher.Constraint("DistanceX", -1, 1, 38, 3, 11.436285))
sketch1.addConstraint(Sketcher.Constraint("DistanceY", 40, 3, -1, 1, 0.726167))
sketch1.addConstraint(Sketcher.Constraint("DistanceY", -1, 1, 49, 3, 0.726167))
sketch1.addConstraint(Sketcher.Constraint("DistanceX", -1, 1, 50, 3, 16.903244))
sketch1.addConstraint(Sketcher.Constraint("DistanceX", -1, 1, 54, 3, 18.534963))
sketch1.addConstraint(Sketcher.Constraint("DistanceX", -1, 1, 56, 3, 0.726167))
sketch1.addConstraint(Sketcher.Constraint("DistanceX", 4, 1, -1, 1, 8.682546))
sketch1.addConstraint(Sketcher.Constraint("DistanceX", 6, 1, -1, 1, 14.032776))
sketch1.addConstraint(Sketcher.Constraint("DistanceX", 20, 1, -1, 1, 8.682546))
sketch1.addConstraint(Sketcher.Constraint("DistanceX", 22, 1, -1, 1, 7.719727))
sketch1.addConstraint(Sketcher.Constraint("DistanceX", -1, 1, 36, 1, 8.682546))
sketch1.addConstraint(Sketcher.Constraint("DistanceX", -1, 1, 38, 1, 14.032776))
sketch1.addConstraint(Sketcher.Constraint("DistanceX", -1, 1, 52, 1, 8.682546))
sketch1.addConstraint(Sketcher.Constraint("DistanceX", -1, 1, 54, 1, 7.719727))
pad1 = doc.addObject("PartDesign::Pad", "Pad")
body.addObject(pad1)
pad1.Profile = sketch1
pad1.Length = 21

sketch2 = doc.addObject("Sketcher::SketchObject", "Sketch001")
body.addObject(sketch2)
sketch2.AttachmentSupport = (doc.XZ_Plane, [""])
sketch2.MapMode = "FlatFace"
sketch2.addGeometry(Part.LineSegment(Vector(14, 0, 0), Vector(24, 0, 0)), False)
sketch2.addGeometry(Part.LineSegment(Vector(24, 0, 0), Vector(24, 21, 0)), False)
sketch2.addGeometry(Part.LineSegment(Vector(24, 21, 0), Vector(14, 21, 0)), False)
sketch2.addGeometry(Part.ArcOfCircle(Part.Circle(Vector(14, 12.1, 0), Vector(0, 0, 1), 8.9), math.radians(60), math.radians(90)), False)
sketch2.addGeometry(Part.LineSegment(Vector(18.5, 19.8, 0), Vector(18.5, 15.4, 0)), False)
sketch2.addGeometry(Part.ArcOfCircle(Part.Circle(Vector(14, 22.1, 0), Vector(0, 0, 1), 8.1), math.radians(-90), math.radians(-56)), False)
sketch2.addGeometry(Part.LineSegment(Vector(14, 14, 0), Vector(10, 14, 0)), False)
sketch2.addGeometry(Part.LineSegment(Vector(10, 14, 0), Vector(10, 7, 0)), False)
sketch2.addGeometry(Part.LineSegment(Vector(10, 7, 0), Vector(14, 7, 0)), False)
sketch2.addGeometry(Part.ArcOfCircle(Part.Circle(Vector(14, -1.4, 0), Vector(0, 0, 1), 8.4), math.radians(58), math.radians(90)), False)
sketch2.addGeometry(Part.LineSegment(Vector(18.5, 5.7, 0), Vector(18.5, 1.3, 0)), False)
sketch2.addGeometry(Part.ArcOfCircle(Part.Circle(Vector(14, 8.5, 0), Vector(0, 0, 1), 8.5), math.radians(-90), math.radians(-58)), False)
sketch2.addConstraint(Sketcher.Constraint("Coincident", 0, 2, 1, 1))
sketch2.addConstraint(Sketcher.Constraint("Coincident", 1, 2, 2, 1))
sketch2.addConstraint(Sketcher.Constraint("Tangent", 2, 2, 3, 2))
sketch2.addConstraint(Sketcher.Constraint("Coincident", 3, 1, 4, 1))
sketch2.addConstraint(Sketcher.Constraint("Coincident", 4, 2, 5, 2))
sketch2.addConstraint(Sketcher.Constraint("Tangent", 5, 1, 6, 1))
sketch2.addConstraint(Sketcher.Constraint("Coincident", 6, 2, 7, 1))
sketch2.addConstraint(Sketcher.Constraint("Coincident", 7, 2, 8, 1))
sketch2.addConstraint(Sketcher.Constraint("Tangent", 8, 2, 9, 2))
sketch2.addConstraint(Sketcher.Constraint("Coincident", 9, 1, 10, 1))
sketch2.addConstraint(Sketcher.Constraint("Coincident", 10, 2, 11, 2))
sketch2.addConstraint(Sketcher.Constraint("Tangent", 11, 1, 0, 1))
sketch2.addConstraint(Sketcher.Constraint("Horizontal", 0))
sketch2.addConstraint(Sketcher.Constraint("Vertical", 1))
sketch2.addConstraint(Sketcher.Constraint("Horizontal", 2))
sketch2.addConstraint(Sketcher.Constraint("Vertical", 4))
sketch2.addConstraint(Sketcher.Constraint("Horizontal", 6))
sketch2.addConstraint(Sketcher.Constraint("Vertical", 7))
sketch2.addConstraint(Sketcher.Constraint("Horizontal", 8))
sketch2.addConstraint(Sketcher.Constraint("Vertical", 10))
sketch2.addConstraint(Sketcher.Constraint("PointOnObject", 0, 2, -1))
sketch2.addConstraint(Sketcher.Constraint("Vertical", 3, 3, 5, 3))
sketch2.addConstraint(Sketcher.Constraint("Vertical", 5, 3, 9, 3))
sketch2.addConstraint(Sketcher.Constraint("Vertical", 9, 3, 11, 3))
sketch2.addConstraint(Sketcher.Constraint("Vertical", 4, 2, 9, 1))
sketch2.addConstraint(Sketcher.Constraint("Equal", 4, 10))
sketch2.addConstraint(Sketcher.Constraint("DistanceX", 0, 1, 0, 2, 10.0))
sketch2.addConstraint(Sketcher.Constraint("DistanceY", 1, 1, 1, 2, 21.0))
sketch2.addConstraint(Sketcher.Constraint("DistanceY", 7, 2, 7, 1, 7.0))
sketch2.addConstraint(Sketcher.Constraint("Radius", 11, 8.51))
sketch2.addConstraint(Sketcher.Constraint("DistanceY", -1, 1, 5, 1, 14.0))
sketch2.addConstraint(Sketcher.Constraint("DistanceX", -1, 1, 6, 2, 10.0))
sketch2.addConstraint(Sketcher.Constraint("DistanceX", -1, 1, 3, 1, 18.5))
sketch2.addConstraint(Sketcher.Constraint("DistanceY", -1, 1, 10, 2, 1.3))
sketch2.addConstraint(Sketcher.Constraint("Radius", 9, 8.443958))
sketch2.addConstraint(Sketcher.Constraint("Radius", 3, 8.937747))
groove = doc.addObject("PartDesign::Groove", "Groove")
body.addObject(groove)
groove.Profile = sketch2
groove.ReferenceAxis = (sketch2, ["V_Axis"])
groove.Angle = 360

sketch3 = doc.addObject("Sketcher::SketchObject", "Sketch002")
body.addObject(sketch3)
sketch3.AttachmentSupport = (doc.XY_Plane, [""])
sketch3.MapMode = "FlatFace"
sketch3.addGeometry(Part.Circle(Vector(0, 0, 0), Vector(0, 0, 1), 10), False)
sketch3.addConstraint(Sketcher.Constraint("Coincident", 0, 3, -1, 1))
sketch3.addConstraint(Sketcher.Constraint("Diameter", 0, 20.0))
pad2 = doc.addObject("PartDesign::Pad", "Pad001")
body.addObject(pad2)
pad2.Profile = sketch3
pad2.Length = 32

sketch4 = doc.addObject("Sketcher::SketchObject", "Sketch003")
body.addObject(sketch4)
sketch4.AttachmentSupport = (doc.XY_Plane, [""])
sketch4.MapMode = "FlatFace"
sketch4.addGeometry(Part.Circle(Vector(0, 0, 0), Vector(0, 0, 1), 5), False)
sketch4.addConstraint(Sketcher.Constraint("Coincident", 0, 3, -1, 1))
sketch4.addConstraint(Sketcher.Constraint("Diameter", 0, 10.0))
pocket1 = doc.addObject("PartDesign::Pocket", "Pocket")
body.addObject(pocket1)
pocket1.Profile = sketch4
pocket1.Type = "ThroughAll"
pocket1.Midplane = True

doc.recompute()
